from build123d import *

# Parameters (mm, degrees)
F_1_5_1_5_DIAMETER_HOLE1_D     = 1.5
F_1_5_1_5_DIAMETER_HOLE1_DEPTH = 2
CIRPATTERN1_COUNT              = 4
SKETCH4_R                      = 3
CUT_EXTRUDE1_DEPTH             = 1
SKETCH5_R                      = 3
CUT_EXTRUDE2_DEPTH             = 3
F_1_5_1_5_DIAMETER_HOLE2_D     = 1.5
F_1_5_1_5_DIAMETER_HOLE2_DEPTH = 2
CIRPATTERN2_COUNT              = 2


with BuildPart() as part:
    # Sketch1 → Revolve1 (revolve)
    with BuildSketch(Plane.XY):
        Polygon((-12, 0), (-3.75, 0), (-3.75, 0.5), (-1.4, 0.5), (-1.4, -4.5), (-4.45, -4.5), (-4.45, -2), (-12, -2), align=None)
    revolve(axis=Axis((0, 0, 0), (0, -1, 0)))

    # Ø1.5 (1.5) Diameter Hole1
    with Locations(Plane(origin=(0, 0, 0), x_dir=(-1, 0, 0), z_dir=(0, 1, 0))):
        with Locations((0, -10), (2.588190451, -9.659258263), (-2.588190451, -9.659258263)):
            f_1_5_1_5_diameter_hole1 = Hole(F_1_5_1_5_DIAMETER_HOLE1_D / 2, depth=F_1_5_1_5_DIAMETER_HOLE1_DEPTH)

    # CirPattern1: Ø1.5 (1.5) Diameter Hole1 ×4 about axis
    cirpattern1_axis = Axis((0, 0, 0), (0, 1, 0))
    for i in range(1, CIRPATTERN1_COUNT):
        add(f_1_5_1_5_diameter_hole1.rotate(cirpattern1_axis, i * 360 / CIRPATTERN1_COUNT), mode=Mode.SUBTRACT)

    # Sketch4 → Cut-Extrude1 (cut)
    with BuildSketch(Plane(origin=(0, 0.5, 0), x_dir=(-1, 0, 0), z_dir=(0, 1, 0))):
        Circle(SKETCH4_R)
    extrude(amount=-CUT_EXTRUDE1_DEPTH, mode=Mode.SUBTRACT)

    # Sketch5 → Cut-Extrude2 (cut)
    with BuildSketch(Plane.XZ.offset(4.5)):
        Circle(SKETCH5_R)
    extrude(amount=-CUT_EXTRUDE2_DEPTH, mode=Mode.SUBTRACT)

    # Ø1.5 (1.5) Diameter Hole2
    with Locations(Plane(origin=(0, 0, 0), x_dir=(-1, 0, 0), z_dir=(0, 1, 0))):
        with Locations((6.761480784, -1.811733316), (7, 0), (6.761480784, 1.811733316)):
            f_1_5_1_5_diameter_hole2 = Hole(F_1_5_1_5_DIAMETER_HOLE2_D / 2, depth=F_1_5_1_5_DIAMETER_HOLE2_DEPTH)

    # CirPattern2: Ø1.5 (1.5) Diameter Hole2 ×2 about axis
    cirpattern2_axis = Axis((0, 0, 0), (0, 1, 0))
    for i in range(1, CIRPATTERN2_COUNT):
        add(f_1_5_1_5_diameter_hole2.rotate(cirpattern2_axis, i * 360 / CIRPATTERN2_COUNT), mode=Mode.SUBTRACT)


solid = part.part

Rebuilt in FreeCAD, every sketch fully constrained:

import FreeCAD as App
import Part
import Sketcher

V = App.Vector

doc = App.newDocument("Part")
body = doc.addObject("PartDesign::Body", "Body")

sketch1 = body.newObject("Sketcher::SketchObject", "Sketch")
sketch1.AttachmentSupport = (doc.getObject("XY_Plane"), [""])
sketch1.MapMode = "FlatFace"
sketch1.addGeometry(Part.LineSegment(V(-3.75, 0, 0), V(-12, 0, 0)), False)
sketch1.addGeometry(Part.LineSegment(V(-12, 0, 0), V(-12, -2, 0)), False)
sketch1.addGeometry(Part.LineSegment(V(-12, -2, 0), V(-4.45, -2, 0)), False)
sketch1.addGeometry(Part.LineSegment(V(-4.45, -2, 0), V(-4.45, -4.5, 0)), False)
sketch1.addGeometry(Part.LineSegment(V(-4.45, -4.5, 0), V(-1.4, -4.5, 0)), False)
sketch1.addGeometry(Part.LineSegment(V(-1.4, -4.5, 0), V(-1.4, 0.5, 0)), False)
sketch1.addGeometry(Part.LineSegment(V(-1.4, 0.5, 0), V(-3.75, 0.5, 0)), False)
sketch1.addGeometry(Part.LineSegment(V(-3.75, 0.5, 0), V(-3.75, 0, 0)), False)
sketch1.addConstraint(Sketcher.Constraint("Coincident", 0, 2, 1, 1))
sketch1.addConstraint(Sketcher.Constraint("Coincident", 1, 2, 2, 1))
sketch1.addConstraint(Sketcher.Constraint("Coincident", 2, 2, 3, 1))
sketch1.addConstraint(Sketcher.Constraint("Coincident", 3, 2, 4, 1))
sketch1.addConstraint(Sketcher.Constraint("Coincident", 4, 2, 5, 1))
sketch1.addConstraint(Sketcher.Constraint("Coincident", 5, 2, 6, 1))
sketch1.addConstraint(Sketcher.Constraint("Coincident", 6, 2, 7, 1))
sketch1.addConstraint(Sketcher.Constraint("Coincident", 7, 2, 0, 1))
sketch1.addConstraint(Sketcher.Constraint("Horizontal", 0))
sketch1.addConstraint(Sketcher.Constraint("Vertical", 1))
sketch1.addConstraint(Sketcher.Constraint("Horizontal", 2))
sketch1.addConstraint(Sketcher.Constraint("Vertical", 3))
sketch1.addConstraint(Sketcher.Constraint("Horizontal", 4))
sketch1.addConstraint(Sketcher.Constraint("Vertical", 5))
sketch1.addConstraint(Sketcher.Constraint("Horizontal", 6))
sketch1.addConstraint(Sketcher.Constraint("Vertical", 7))
sketch1.addConstraint(Sketcher.Constraint("PointOnObject", 0, 2, -1))
sketch1.addConstraint(Sketcher.Constraint("DistanceY", 1, 2, 1, 1, 2.0))
sketch1.addConstraint(Sketcher.Constraint("DistanceY", 5, 1, 5, 2, 5.0))
sketch1.addConstraint(Sketcher.Constraint("DistanceY", 3, 2, 3, 1, 2.5))
sketch1.addConstraint(Sketcher.Constraint("DistanceX", 0, 2, -1, 1, 12.0))
sketch1.addConstraint(Sketcher.Constraint("DistanceX", 0, 2, 0, 1, 8.25))
sketch1.addConstraint(Sketcher.Constraint("DistanceX", 2, 1, 2, 2, 7.55))
sketch1.addConstraint(Sketcher.Constraint("DistanceX", 4, 1, 4, 2, 3.05))
revolution = body.newObject("PartDesign::Revolution", "Revolution")
revolution.Profile = sketch1
revolution.ReferenceAxis = (sketch1, ["V_Axis"])
revolution.Angle = 360

sketch2 = body.newObject("Sketcher::SketchObject", "Sketch001")
sketch2.AttachmentSupport = (doc.getObject("XZ_Plane"), [""])
sketch2.MapMode = "FlatFace"
sketch2.addGeometry(Part.Circle(V(0, -10, 0), V(0, 0, 1), 0.75), False)
sketch2.addGeometry(Part.Circle(V(-2.58819, -9.659258, 0), V(0, 0, 1), 0.75), False)
sketch2.addGeometry(Part.Circle(V(2.58819, -9.659258, 0), V(0, 0, 1), 0.75), False)
sketch2.addConstraint(Sketcher.Constraint("Equal", 0, 1))
sketch2.addConstraint(Sketcher.Constraint("Equal", 1, 2))
sketch2.addConstraint(Sketcher.Constraint("Symmetric", 1, 3, 2, 3, -2))
sketch2.addConstraint(Sketcher.Constraint("PointOnObject", 0, 3, -2))
sketch2.addConstraint(Sketcher.Constraint("Diameter", 0, 1.5))
sketch2.addConstraint(Sketcher.Constraint("DistanceY", 0, 3, -1, 1, 10.0))
sketch2.addConstraint(Sketcher.Constraint("DistanceX", 1, 3, -1, 1, 2.58819))
sketch2.addConstraint(Sketcher.Constraint("DistanceY", 1, 3, -1, 1, 9.659258))
doc.recompute()
hole = body.newObject("PartDesign::Hole", "Hole")
hole.Profile = sketch2
hole.ThreadType = "None"
hole.Diameter = 1.5
hole.DepthType = "Dimension"
hole.Depth = 2
hole.DrillPoint = "Flat"
hole.Reversed = True
doc.recompute()

polarpattern = body.newObject("PartDesign::PolarPattern", "PolarPattern")
polarpattern.Originals = [hole]
polarpattern.Axis = (doc.getObject("Y_Axis"), [""])
polarpattern.Angle = 360
polarpattern.Occurrences = 4
body.Tip = polarpattern

sketch3 = body.newObject("Sketcher::SketchObject", "Sketch002")
sketch3.AttachmentSupport = (doc.getObject("XZ_Plane"), [""])
sketch3.MapMode = "FlatFace"
sketch3.AttachmentOffset = App.Placement(V(0, 0, -0.5), App.Rotation())
sketch3.addGeometry(Part.Circle(V(0, 0, 0), V(0, 0, 1), 3), False)
sketch3.addConstraint(Sketcher.Constraint("Coincident", 0, 3, -1, 1))
sketch3.addConstraint(Sketcher.Constraint("Diameter", 0, 6.0))
pocket1 = body.newObject("PartDesign::Pocket", "Pocket")
pocket1.Profile = sketch3
pocket1.Length = 1
pocket1.Reversed = True

sketch4 = body.newObject("Sketcher::SketchObject", "Sketch003")
sketch4.AttachmentSupport = (doc.getObject("XZ_Plane"), [""])
sketch4.MapMode = "FlatFace"
sketch4.AttachmentOffset = App.Placement(V(0, 0, 4.5), App.Rotation())
sketch4.addGeometry(Part.Circle(V(0, 0, 0), V(0, 0, 1), 3), False)
sketch4.addConstraint(Sketcher.Constraint("Coincident", 0, 3, -1, 1))
sketch4.addConstraint(Sketcher.Constraint("Diameter", 0, 6.0))
pocket2 = body.newObject("PartDesign::Pocket", "Pocket001")
pocket2.Profile = sketch4
pocket2.Length = 3

sketch5 = body.newObject("Sketcher::SketchObject", "Sketch004")
sketch5.AttachmentSupport = (doc.getObject("XZ_Plane"), [""])
sketch5.MapMode = "FlatFace"
sketch5.addGeometry(Part.Circle(V(-6.761481, -1.811733, 0), V(0, 0, 1), 0.75), False)
sketch5.addGeometry(Part.Circle(V(-7, 0, 0), V(0, 0, 1), 0.75), False)
sketch5.addGeometry(Part.Circle(V(-6.761481, 1.811733, 0), V(0, 0, 1), 0.75), False)
sketch5.addConstraint(Sketcher.Constraint("Equal", 0, 1))
sketch5.addConstraint(Sketcher.Constraint("Equal", 1, 2))
sketch5.addConstraint(Sketcher.Constraint("Symmetric", 0, 3, 2, 3, -1))
sketch5.addConstraint(Sketcher.Constraint("PointOnObject", 1, 3, -1))
sketch5.addConstraint(Sketcher.Constraint("Diameter", 0, 1.5))
sketch5.addConstraint(Sketcher.Constraint("DistanceX", 1, 3, -1, 1, 7.0))
sketch5.addConstraint(Sketcher.Constraint("DistanceX", 0, 3, -1, 1, 6.761481))
sketch5.addConstraint(Sketcher.Constraint("DistanceY", 0, 3, -1, 1, 1.811733))
doc.recompute()
hole2 = body.newObject("PartDesign::Hole", "Hole001")
hole2.Profile = sketch5
hole2.ThreadType = "None"
hole2.Diameter = 1.5
hole2.DepthType = "Dimension"
hole2.Depth = 2
hole2.DrillPoint = "Flat"
hole2.Reversed = True
doc.recompute()

polarpattern2 = body.newObject("PartDesign::PolarPattern", "PolarPattern001")
polarpattern2.Originals = [hole2]
polarpattern2.Axis = (doc.getObject("Y_Axis"), [""])
polarpattern2.Angle = 360
polarpattern2.Occurrences = 2
body.Tip = polarpattern2

doc.recompute()
